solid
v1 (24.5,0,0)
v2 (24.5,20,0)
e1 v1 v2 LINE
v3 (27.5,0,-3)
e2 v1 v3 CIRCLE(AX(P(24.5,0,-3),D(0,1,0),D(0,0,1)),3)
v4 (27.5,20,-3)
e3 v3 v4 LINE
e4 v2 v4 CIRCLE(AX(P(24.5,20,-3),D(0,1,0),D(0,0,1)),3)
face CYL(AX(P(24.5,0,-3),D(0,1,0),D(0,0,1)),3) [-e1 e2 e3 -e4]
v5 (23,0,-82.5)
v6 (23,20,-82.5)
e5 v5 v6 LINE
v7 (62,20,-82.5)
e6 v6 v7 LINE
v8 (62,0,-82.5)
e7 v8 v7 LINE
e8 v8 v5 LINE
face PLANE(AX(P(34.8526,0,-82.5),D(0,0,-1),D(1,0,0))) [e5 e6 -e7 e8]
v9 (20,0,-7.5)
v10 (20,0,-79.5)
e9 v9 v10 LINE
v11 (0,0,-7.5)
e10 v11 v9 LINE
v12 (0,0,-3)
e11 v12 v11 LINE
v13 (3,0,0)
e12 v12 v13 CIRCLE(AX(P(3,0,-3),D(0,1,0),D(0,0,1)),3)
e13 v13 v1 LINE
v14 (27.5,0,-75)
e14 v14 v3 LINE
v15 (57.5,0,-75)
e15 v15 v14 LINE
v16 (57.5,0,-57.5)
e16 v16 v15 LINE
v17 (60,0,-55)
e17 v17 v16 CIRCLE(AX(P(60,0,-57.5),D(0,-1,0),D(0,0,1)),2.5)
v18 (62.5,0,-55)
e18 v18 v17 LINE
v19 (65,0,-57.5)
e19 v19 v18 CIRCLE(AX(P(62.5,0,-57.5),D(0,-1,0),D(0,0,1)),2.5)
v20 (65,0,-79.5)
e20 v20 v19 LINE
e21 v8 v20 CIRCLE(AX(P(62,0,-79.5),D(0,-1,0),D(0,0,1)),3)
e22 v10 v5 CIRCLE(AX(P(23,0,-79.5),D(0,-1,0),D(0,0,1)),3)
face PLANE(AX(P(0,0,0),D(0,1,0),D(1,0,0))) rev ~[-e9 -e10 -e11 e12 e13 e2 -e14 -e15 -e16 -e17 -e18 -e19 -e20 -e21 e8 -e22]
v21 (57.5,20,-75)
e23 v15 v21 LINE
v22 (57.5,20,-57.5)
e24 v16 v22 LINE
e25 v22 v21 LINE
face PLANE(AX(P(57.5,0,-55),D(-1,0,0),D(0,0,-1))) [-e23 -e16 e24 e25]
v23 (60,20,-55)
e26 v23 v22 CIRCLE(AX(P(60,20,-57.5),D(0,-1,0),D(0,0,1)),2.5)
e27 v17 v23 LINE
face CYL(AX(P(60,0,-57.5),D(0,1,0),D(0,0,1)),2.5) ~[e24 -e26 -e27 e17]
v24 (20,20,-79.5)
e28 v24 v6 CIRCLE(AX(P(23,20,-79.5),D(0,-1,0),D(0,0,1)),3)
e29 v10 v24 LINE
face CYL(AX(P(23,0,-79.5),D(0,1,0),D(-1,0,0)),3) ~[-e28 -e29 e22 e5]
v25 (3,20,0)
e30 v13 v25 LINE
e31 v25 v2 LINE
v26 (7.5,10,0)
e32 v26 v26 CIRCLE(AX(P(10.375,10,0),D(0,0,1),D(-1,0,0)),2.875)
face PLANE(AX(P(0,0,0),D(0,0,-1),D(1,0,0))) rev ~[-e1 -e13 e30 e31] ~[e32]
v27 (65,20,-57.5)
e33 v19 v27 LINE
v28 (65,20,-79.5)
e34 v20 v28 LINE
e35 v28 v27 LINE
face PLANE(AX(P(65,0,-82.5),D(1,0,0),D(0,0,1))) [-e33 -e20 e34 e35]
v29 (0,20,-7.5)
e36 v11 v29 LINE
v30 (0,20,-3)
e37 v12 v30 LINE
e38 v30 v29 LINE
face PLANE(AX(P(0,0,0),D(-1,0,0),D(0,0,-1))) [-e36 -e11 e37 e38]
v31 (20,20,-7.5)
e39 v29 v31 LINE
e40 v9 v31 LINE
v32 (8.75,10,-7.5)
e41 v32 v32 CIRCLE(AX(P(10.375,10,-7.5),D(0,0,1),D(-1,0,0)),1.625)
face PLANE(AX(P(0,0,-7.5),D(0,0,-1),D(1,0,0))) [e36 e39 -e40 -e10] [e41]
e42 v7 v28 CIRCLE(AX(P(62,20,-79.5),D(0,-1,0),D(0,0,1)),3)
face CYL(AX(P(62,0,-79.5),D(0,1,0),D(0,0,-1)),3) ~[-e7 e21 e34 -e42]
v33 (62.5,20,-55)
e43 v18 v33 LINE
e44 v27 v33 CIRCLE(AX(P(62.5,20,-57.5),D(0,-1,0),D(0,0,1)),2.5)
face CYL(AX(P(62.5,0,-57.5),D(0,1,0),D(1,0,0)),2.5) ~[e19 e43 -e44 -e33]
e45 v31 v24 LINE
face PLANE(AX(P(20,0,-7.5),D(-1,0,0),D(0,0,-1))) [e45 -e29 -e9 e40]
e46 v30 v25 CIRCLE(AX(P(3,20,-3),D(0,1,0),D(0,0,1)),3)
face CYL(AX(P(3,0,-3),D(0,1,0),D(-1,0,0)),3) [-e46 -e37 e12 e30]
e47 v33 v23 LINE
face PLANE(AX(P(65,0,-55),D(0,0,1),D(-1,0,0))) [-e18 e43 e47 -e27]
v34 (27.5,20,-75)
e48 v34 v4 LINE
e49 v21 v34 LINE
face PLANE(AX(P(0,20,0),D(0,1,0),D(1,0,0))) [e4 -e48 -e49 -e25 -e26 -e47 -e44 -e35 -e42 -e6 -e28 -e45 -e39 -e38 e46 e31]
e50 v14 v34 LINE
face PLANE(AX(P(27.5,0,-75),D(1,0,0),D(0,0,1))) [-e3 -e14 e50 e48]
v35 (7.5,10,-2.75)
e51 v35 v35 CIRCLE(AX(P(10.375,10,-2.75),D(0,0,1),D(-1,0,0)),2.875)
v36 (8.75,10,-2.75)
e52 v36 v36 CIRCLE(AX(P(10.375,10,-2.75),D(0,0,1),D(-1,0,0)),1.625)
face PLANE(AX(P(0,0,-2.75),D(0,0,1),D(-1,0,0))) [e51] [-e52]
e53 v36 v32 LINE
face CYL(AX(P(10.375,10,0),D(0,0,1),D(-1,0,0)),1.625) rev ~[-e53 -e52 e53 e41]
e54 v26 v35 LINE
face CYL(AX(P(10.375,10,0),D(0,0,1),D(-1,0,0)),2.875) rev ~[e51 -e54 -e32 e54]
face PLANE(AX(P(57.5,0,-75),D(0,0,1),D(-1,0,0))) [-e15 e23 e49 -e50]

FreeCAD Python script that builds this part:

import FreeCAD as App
import Part
import Sketcher

V = App.Vector
Q = App.Units.Quantity


def edges_at(feature, points):
    """Names of the edges that pass closest to the given points."""
    edges = feature.Shape.Edges
    near = lambda p: min(range(len(edges)), key=lambda i: edges[i].distToShape(Part.Vertex(*p))[0])
    return sorted({f"Edge{near(p) + 1}" for p in points})

doc = App.newDocument("Part")
body = doc.addObject("PartDesign::Body", "Body")

sketch1 = body.newObject("Sketcher::SketchObject", "Sketch")
sketch1.AttachmentSupport = (doc.getObject("XZ_Plane"), [""])
sketch1.MapMode = "FlatFace"
sketch1.addGeometry(Part.LineSegment(V(0, -8, 0), V(0, 0, 0)), False)
sketch1.addGeometry(Part.LineSegment(V(0, 0, 0), V(28, 0, 0)), False)
sketch1.addGeometry(Part.LineSegment(V(28, 0, 0), V(28, -75, 0)), False)
sketch1.addGeometry(Part.LineSegment(V(28, -75, 0), V(58, -75, 0)), False)
sketch1.addGeometry(Part.LineSegment(V(58, -75, 0), V(58, -55, 0)), False)
sketch1.addGeometry(Part.LineSegment(V(58, -55, 0), V(65, -55, 0)), False)
sketch1.addGeometry(Part.LineSegment(V(65, -55, 0), V(65, -82, 0)), False)
sketch1.addGeometry(Part.LineSegment(V(65, -82, 0), V(20, -82, 0)), False)
sketch1.addGeometry(Part.LineSegment(V(20, -82, 0), V(20, -8, 0)), False)
sketch1.addGeometry(Part.LineSegment(V(20, -8, 0), V(0, -8, 0)), False)
sketch1.addConstraint(Sketcher.Constraint("Coincident", 0, 2, 1, 1))
sketch1.addConstraint(Sketcher.Constraint("Coincident", 1, 2, 2, 1))
sketch1.addConstraint(Sketcher.Constraint("Coincident", 2, 2, 3, 1))
sketch1.addConstraint(Sketcher.Constraint("Coincident", 3, 2, 4, 1))
sketch1.addConstraint(Sketcher.Constraint("Coincident", 4, 2, 5, 1))
sketch1.addConstraint(Sketcher.Constraint("Coincident", 5, 2, 6, 1))
sketch1.addConstraint(Sketcher.Constraint("Coincident", 6, 2, 7, 1))
sketch1.addConstraint(Sketcher.Constraint("Coincident", 7, 2, 8, 1))
sketch1.addConstraint(Sketcher.Constraint("Coincident", 8, 2, 9, 1))
sketch1.addConstraint(Sketcher.Constraint("Coincident", 9, 2, 0, 1))
sketch1.addConstraint(Sketcher.Constraint("Vertical", 0))
sketch1.addConstraint(Sketcher.Constraint("Horizontal", 1))
sketch1.addConstraint(Sketcher.Constraint("Vertical", 2))
sketch1.addConstraint(Sketcher.Constraint("Horizontal", 3))
sketch1.addConstraint(Sketcher.Constraint("Vertical", 4))
sketch1.addConstraint(Sketcher.Constraint("Horizontal", 5))
sketch1.addConstraint(Sketcher.Constraint("Vertical", 6))
sketch1.addConstraint(Sketcher.Constraint("Horizontal", 7))
sketch1.addConstraint(Sketcher.Constraint("Vertical", 8))
sketch1.addConstraint(Sketcher.Constraint("Horizontal", 9))
sketch1.addConstraint(Sketcher.Constraint("Coincident", 0, 2, -1, 1))
sketch1.addConstraint(Sketcher.Constraint("Equal", 5, 0))
sketch1.addConstraint(Sketcher.Constraint("Equal", 9, 4))
sketch1.addConstraint(Sketcher.Constraint("Equal", 1, 6))
sketch1.addConstraint(Sketcher.Constraint("Equal", 2, 8))
sketch1.addConstraint(Sketcher.Constraint("DistanceX", 3, 1, 3, 2, Q("30 mm")))
sketch1.addConstraint(Sketcher.Constraint("DistanceX", 9, 2, 9, 1, Q("20 mm")))
sketch1.addConstraint(Sketcher.Constraint("DistanceY", 2, 2, 2, 1, Q("75 mm")))
sketch1.addConstraint(Sketcher.Constraint("DistanceX", 5, 1, 5, 2, Q("7.5 mm")))
pad1 = body.newObject("PartDesign::Pad", "Pad")
pad1.Profile = sketch1
pad1.Length = 20
pad1.Reversed = True
doc.recompute()

fillet = body.newObject("PartDesign::Fillet", "Fillet")
fillet.Base = (pad1, edges_at(pad1, [(65, 10, -82.5)]))
fillet.Radius = 3
doc.recompute()

fillet2 = body.newObject("PartDesign::Fillet", "Fillet001")
fillet2.Base = (fillet, edges_at(fillet, [(27.5, 10, 0)]))
fillet2.Radius = 3
doc.recompute()

fillet3 = body.newObject("PartDesign::Fillet", "Fillet002")
fillet3.Base = (fillet2, edges_at(fillet2, [(20, 10, -82.5)]))
fillet3.Radius = 3
doc.recompute()

fillet4 = body.newObject("PartDesign::Fillet", "Fillet003")
fillet4.Base = (fillet3, edges_at(fillet3, [(65, 10, -55), (57.5, 10, -55)]))
fillet4.Radius = 2.5
doc.recompute()

fillet5 = body.newObject("PartDesign::Fillet", "Fillet004")
fillet5.Base = (fillet4, edges_at(fillet4, [(0, 10, 0)]))
fillet5.Radius = 3

sketch2 = body.newObject("Sketcher::SketchObject", "Sketch001")
sketch2.AttachmentSupport = (doc.getObject("XY_Plane"), [""])
sketch2.MapMode = "FlatFace"
sketch2.addGeometry(Part.Circle(V(10.4, 10, 0), V(0, 0, 1), 1.6), False)
sketch2.addConstraint(Sketcher.Constraint("Diameter", 0, Q("3.25 mm")))
sketch2.addConstraint(Sketcher.Constraint("DistanceY", -1, 1, 0, 3, Q("10 mm")))
sketch2.addConstraint(Sketcher.Constraint("DistanceX", -1, 1, 0, 3, Q("10.375 mm")))
pocket1 = body.newObject("PartDesign::Pocket", "Pocket")
pocket1.Profile = sketch2
pocket1.Length = 7.5

sketch3 = body.newObject("Sketcher::SketchObject", "Sketch002")
sketch3.AttachmentSupport = (doc.getObject("XY_Plane"), [""])
sketch3.MapMode = "FlatFace"
sketch3.addGeometry(Part.Circle(V(10.4, 10, 0), V(0, 0, 1), 2.9), False)
sketch3.addGeometry(Part.Circle(V(10.4, 10, 0), V(0, 0, 1), 1.6), False)
sketch3.addConstraint(Sketcher.Constraint("Coincident", 1, 3, 0, 3))
sketch3.addConstraint(Sketcher.Constraint("Diameter", 0, Q("5.75 mm")))
sketch3.addConstraint(Sketcher.Constraint("Diameter", 1, Q("3.25 mm")))
sketch3.addConstraint(Sketcher.Constraint("DistanceY", -1, 1, 0, 3, Q("10 mm")))
sketch3.addConstraint(Sketcher.Constraint("DistanceX", -1, 1, 0, 3, Q("10.375 mm")))
pocket2 = body.newObject("PartDesign::Pocket", "Pocket001")
pocket2.Profile = sketch3
pocket2.Length = 2.75

doc.recompute()
